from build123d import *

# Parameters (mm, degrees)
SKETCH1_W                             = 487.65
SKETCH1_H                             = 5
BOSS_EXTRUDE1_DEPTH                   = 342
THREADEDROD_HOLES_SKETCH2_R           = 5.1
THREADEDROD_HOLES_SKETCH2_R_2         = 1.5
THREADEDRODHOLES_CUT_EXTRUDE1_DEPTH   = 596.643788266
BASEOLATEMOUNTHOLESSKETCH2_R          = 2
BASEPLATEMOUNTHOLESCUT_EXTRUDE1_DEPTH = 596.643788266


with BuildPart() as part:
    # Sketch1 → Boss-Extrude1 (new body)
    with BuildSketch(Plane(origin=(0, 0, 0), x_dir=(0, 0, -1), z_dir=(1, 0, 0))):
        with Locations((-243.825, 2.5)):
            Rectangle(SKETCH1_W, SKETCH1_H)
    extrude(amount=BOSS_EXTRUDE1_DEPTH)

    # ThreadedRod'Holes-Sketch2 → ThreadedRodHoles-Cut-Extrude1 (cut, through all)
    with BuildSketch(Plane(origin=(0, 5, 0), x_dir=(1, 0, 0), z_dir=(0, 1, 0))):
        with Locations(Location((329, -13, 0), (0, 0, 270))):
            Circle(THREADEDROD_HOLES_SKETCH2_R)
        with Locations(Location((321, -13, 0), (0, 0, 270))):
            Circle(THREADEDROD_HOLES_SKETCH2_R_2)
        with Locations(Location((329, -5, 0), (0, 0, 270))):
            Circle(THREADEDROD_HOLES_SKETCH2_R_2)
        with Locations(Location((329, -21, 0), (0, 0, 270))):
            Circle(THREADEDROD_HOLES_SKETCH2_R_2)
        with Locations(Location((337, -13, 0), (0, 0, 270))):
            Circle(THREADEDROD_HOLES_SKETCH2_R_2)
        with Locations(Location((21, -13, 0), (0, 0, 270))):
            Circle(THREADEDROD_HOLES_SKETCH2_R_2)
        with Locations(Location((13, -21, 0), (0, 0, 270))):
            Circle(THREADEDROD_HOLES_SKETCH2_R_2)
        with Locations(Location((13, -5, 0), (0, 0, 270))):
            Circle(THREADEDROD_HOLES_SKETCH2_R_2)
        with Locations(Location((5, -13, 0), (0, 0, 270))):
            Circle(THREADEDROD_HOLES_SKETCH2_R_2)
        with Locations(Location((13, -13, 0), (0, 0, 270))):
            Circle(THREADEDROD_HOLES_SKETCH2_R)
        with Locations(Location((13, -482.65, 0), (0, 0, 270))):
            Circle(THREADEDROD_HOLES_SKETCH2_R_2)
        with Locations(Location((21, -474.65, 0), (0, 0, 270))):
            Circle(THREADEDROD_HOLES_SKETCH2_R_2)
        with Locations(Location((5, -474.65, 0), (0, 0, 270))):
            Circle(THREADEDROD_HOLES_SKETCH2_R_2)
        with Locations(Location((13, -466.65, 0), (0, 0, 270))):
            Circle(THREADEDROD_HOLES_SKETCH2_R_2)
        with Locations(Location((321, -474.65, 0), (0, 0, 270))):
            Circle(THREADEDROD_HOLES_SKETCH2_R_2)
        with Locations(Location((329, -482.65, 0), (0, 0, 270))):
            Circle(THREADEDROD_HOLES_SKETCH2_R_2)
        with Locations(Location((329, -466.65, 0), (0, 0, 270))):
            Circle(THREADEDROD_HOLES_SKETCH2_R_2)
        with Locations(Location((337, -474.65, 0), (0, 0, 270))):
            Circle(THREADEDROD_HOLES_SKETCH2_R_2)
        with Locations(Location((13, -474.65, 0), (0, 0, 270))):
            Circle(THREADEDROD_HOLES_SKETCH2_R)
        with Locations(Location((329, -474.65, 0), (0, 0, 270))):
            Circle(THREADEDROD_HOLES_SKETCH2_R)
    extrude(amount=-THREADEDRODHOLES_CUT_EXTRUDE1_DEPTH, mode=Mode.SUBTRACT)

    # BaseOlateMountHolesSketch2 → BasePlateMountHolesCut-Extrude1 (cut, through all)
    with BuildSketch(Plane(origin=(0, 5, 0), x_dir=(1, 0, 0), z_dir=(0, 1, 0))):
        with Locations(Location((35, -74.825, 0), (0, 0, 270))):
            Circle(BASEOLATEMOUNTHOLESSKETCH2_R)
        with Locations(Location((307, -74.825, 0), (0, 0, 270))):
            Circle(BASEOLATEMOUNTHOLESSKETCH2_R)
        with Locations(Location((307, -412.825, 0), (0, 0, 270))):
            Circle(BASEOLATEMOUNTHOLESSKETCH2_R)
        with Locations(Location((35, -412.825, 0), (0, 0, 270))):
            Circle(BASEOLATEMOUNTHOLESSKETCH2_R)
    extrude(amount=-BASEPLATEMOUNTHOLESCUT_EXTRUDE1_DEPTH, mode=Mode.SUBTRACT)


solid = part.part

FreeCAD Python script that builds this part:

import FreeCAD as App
import Part
import Sketcher

V = App.Vector

doc = App.newDocument("Part")
body = doc.addObject("PartDesign::Body", "Body")

# Sketch on YZ plane
sketch1 = doc.addObject("Sketcher::SketchObject", "Sketch")
body.addObject(sketch1)
sketch1.AttachmentSupport = (doc.YZ_Plane, [""])
sketch1.MapMode = "FlatFace"
sketch1.addGeometry([
    Part.LineSegment(V(5, 488, 0), V(0, 488, 0)),
    Part.LineSegment(V(0, 488, 0), V(0, 0, 0)),
    Part.LineSegment(V(0, 0, 0), V(5, 0, 0)),
    Part.LineSegment(V(5, 0, 0), V(5, 488, 0)),
], False)
sketch1.addConstraint([
    Sketcher.Constraint("Coincident", 0, 2, 1, 1),
    Sketcher.Constraint("Coincident", 1, 2, 2, 1),
    Sketcher.Constraint("Coincident", 2, 2, 3, 1),
    Sketcher.Constraint("Coincident", 3, 2, 0, 1),
    Sketcher.Constraint("Horizontal", 0),
    Sketcher.Constraint("Vertical", 1),
    Sketcher.Constraint("Horizontal", 2),
    Sketcher.Constraint("Vertical", 3),
    Sketcher.Constraint("Coincident", 1, 2, -1, 1),
    Sketcher.Constraint("DistanceX", 0, 2, 0, 1, 5.0),
    Sketcher.Constraint("DistanceY", 1, 2, 1, 1, 487.65),
])
pad1 = doc.addObject("PartDesign::Pad", "Pad")
body.addObject(pad1)
pad1.Profile = sketch1
pad1.Length = 342

# Sketch on XZ plane
sketch2 = doc.addObject("Sketcher::SketchObject", "Sketch001")
body.addObject(sketch2)
sketch2.AttachmentSupport = (doc.XZ_Plane, [""])
sketch2.MapMode = "FlatFace"
sketch2.AttachmentOffset = App.Placement(V(0, 0, -5), App.Rotation())
sketch2.addGeometry([
    Part.Circle(V(329, 13, 0), V(0, 0, 1), 5.1),  # 0
    Part.Circle(V(321, 13, 0), V(0, 0, 1), 1.5),  # 1
    Part.Circle(V(329, 5, 0), V(0, 0, 1), 1.5),  # 2
    Part.Circle(V(329, 21, 0), V(0, 0, 1), 1.5),  # 3
    Part.Circle(V(337, 13, 0), V(0, 0, 1), 1.5),  # 4
    Part.Circle(V(21, 13, 0), V(0, 0, 1), 1.5),  # 5
    Part.Circle(V(13, 21, 0), V(0, 0, 1), 1.5),  # 6
    Part.Circle(V(13, 5, 0), V(0, 0, 1), 1.5),  # 7
    Part.Circle(V(5, 13, 0), V(0, 0, 1), 1.5),  # 8
    Part.Circle(V(13, 13, 0), V(0, 0, 1), 5.1),  # 9
    Part.Circle(V(13, 482.6, 0), V(0, 0, 1), 1.5),  # 10
    Part.Circle(V(21, 474.6, 0), V(0, 0, 1), 1.5),  # 11
    Part.Circle(V(5, 474.6, 0), V(0, 0, 1), 1.5),  # 12
    Part.Circle(V(13, 466.6, 0), V(0, 0, 1), 1.5),  # 13
    Part.Circle(V(321, 474.6, 0), V(0, 0, 1), 1.5),  # 14
    Part.Circle(V(329, 482.6, 0), V(0, 0, 1), 1.5),  # 15
    Part.Circle(V(329, 466.6, 0), V(0, 0, 1), 1.5),  # 16
    Part.Circle(V(337, 474.6, 0), V(0, 0, 1), 1.5),  # 17
    Part.Circle(V(13, 474.6, 0), V(0, 0, 1), 5.1),  # 18
    Part.Circle(V(329, 474.6, 0), V(0, 0, 1), 5.1),  # 19
], False)
sketch2.addConstraint([
    Sketcher.Constraint("Equal", 1, 2),
    Sketcher.Constraint("Equal", 2, 3),
    Sketcher.Constraint("Equal", 3, 4),
    Sketcher.Constraint("Equal", 4, 5),
    Sketcher.Constraint("Equal", 5, 6),
    Sketcher.Constraint("Equal", 6, 7),
    Sketcher.Constraint("Equal", 7, 8),
    Sketcher.Constraint("Equal", 0, 9),
    Sketcher.Constraint("Equal", 8, 10),
    Sketcher.Constraint("Equal", 10, 11),
    Sketcher.Constraint("Equal", 11, 12),
    Sketcher.Constraint("Equal", 12, 13),
    Sketcher.Constraint("Equal", 13, 14),
    Sketcher.Constraint("Equal", 14, 15),
    Sketcher.Constraint("Equal", 15, 16),
    Sketcher.Constraint("Equal", 16, 17),
    Sketcher.Constraint("Equal", 9, 18),
    Sketcher.Constraint("Equal", 18, 19),
    Sketcher.Constraint("Horizontal", 0, 3, 1, 3),
    Sketcher.Constraint("Horizontal", 1, 3, 4, 3),
    Sketcher.Constraint("Horizontal", 4, 3, 5, 3),
    Sketcher.Constraint("Horizontal", 3, 3, 6, 3),
    Sketcher.Constraint("Horizontal", 2, 3, 7, 3),
    Sketcher.Constraint("Horizontal", 5, 3, 8, 3),
    Sketcher.Constraint("Horizontal", 8, 3, 9, 3),
    Sketcher.Constraint("Horizontal", 11, 3, 12, 3),
    Sketcher.Constraint("Horizontal", 12, 3, 14, 3),
    Sketcher.Constraint("Horizontal", 10, 3, 15, 3),
    Sketcher.Constraint("Horizontal", 13, 3, 16, 3),
    Sketcher.Constraint("Horizontal", 14, 3, 17, 3),
    Sketcher.Constraint("Horizontal", 17, 3, 18, 3),
    Sketcher.Constraint("Horizontal", 18, 3, 19, 3),
    Sketcher.Constraint("Vertical", 0, 3, 2, 3),
    Sketcher.Constraint("Vertical", 2, 3, 3, 3),
    Sketcher.Constraint("Vertical", 6, 3, 7, 3),
    Sketcher.Constraint("Vertical", 7, 3, 9, 3),
    Sketcher.Constraint("Vertical", 9, 3, 10, 3),
    Sketcher.Constraint("Vertical", 5, 3, 11, 3),
    Sketcher.Constraint("Vertical", 8, 3, 12, 3),
    Sketcher.Constraint("Vertical", 10, 3, 13, 3),
    Sketcher.Constraint("Vertical", 1, 3, 14, 3),
    Sketcher.Constraint("Vertical", 3, 3, 15, 3),
    Sketcher.Constraint("Vertical", 15, 3, 16, 3),
    Sketcher.Constraint("Vertical", 4, 3, 17, 3),
    Sketcher.Constraint("Vertical", 13, 3, 18, 3),
    Sketcher.Constraint("Vertical", 16, 3, 19, 3),
    Sketcher.Constraint("Diameter", 1, 3.0),
    Sketcher.Constraint("Diameter", 0, 10.2),
    Sketcher.Constraint("DistanceX", -1, 1, 0, 3, 329.0),
    Sketcher.Constraint("DistanceY", -1, 1, 0, 3, 13.0),
    Sketcher.Constraint("DistanceX", -1, 1, 1, 3, 321.0),
    Sketcher.Constraint("DistanceY", -1, 1, 2, 3, 5.0),
    Sketcher.Constraint("DistanceY", -1, 1, 3, 3, 21.0),
    Sketcher.Constraint("DistanceX", -1, 1, 4, 3, 337.0),
    Sketcher.Constraint("DistanceX", -1, 1, 5, 3, 21.0),
    Sketcher.Constraint("DistanceX", -1, 1, 6, 3, 13.0),
    Sketcher.Constraint("DistanceX", -1, 1, 8, 3, 5.0),
    Sketcher.Constraint("DistanceY", 11, 3, 10, 3, 8.0),
    Sketcher.Constraint("DistanceY", 13, 3, 11, 3, 8.0),
    Sketcher.Constraint("DistanceY", -1, 1, 10, 3, 482.65),
])
pocket1 = doc.addObject("PartDesign::Pocket", "Pocket")
body.addObject(pocket1)
pocket1.Profile = sketch2
pocket1.Type = "ThroughAll"
pocket1.Reversed = True

# Sketch on XZ plane
sketch3 = doc.addObject("Sketcher::SketchObject", "Sketch002")
body.addObject(sketch3)
sketch3.AttachmentSupport = (doc.XZ_Plane, [""])
sketch3.MapMode = "FlatFace"
sketch3.AttachmentOffset = App.Placement(V(0, 0, -5), App.Rotation())
sketch3.addGeometry([
    Part.Circle(V(35, 74.8, 0), V(0, 0, 1), 2),
    Part.Circle(V(307, 74.8, 0), V(0, 0, 1), 2),
    Part.Circle(V(307, 412.8, 0), V(0, 0, 1), 2),
    Part.Circle(V(35, 412.8, 0), V(0, 0, 1), 2),
], False)
sketch3.addConstraint([
    Sketcher.Constraint("Equal", 0, 1),
    Sketcher.Constraint("Equal", 1, 2),
    Sketcher.Constraint("Equal", 2, 3),
    Sketcher.Constraint("Horizontal", 0, 3, 1, 3),
    Sketcher.Constraint("Horizontal", 2, 3, 3, 3),
    Sketcher.Constraint("Vertical", 1, 3, 2, 3),
    Sketcher.Constraint("Vertical", 0, 3, 3, 3),
    Sketcher.Constraint("Diameter", 0, 4.0),
    Sketcher.Constraint("DistanceX", -1, 1, 0, 3, 35.0),
    Sketcher.Constraint("DistanceX", -1, 1, 1, 3, 307.0),
    Sketcher.Constraint("DistanceY", 1, 3, 2, 3, 338.0),
    Sketcher.Constraint("DistanceY", -1, 1, 0, 3, 74.825),
])
pocket2 = doc.addObject("PartDesign::Pocket", "Pocket001")
body.addObject(pocket2)
pocket2.Profile = sketch3
pocket2.Type = "ThroughAll"
pocket2.Reversed = True

doc.recompute()
